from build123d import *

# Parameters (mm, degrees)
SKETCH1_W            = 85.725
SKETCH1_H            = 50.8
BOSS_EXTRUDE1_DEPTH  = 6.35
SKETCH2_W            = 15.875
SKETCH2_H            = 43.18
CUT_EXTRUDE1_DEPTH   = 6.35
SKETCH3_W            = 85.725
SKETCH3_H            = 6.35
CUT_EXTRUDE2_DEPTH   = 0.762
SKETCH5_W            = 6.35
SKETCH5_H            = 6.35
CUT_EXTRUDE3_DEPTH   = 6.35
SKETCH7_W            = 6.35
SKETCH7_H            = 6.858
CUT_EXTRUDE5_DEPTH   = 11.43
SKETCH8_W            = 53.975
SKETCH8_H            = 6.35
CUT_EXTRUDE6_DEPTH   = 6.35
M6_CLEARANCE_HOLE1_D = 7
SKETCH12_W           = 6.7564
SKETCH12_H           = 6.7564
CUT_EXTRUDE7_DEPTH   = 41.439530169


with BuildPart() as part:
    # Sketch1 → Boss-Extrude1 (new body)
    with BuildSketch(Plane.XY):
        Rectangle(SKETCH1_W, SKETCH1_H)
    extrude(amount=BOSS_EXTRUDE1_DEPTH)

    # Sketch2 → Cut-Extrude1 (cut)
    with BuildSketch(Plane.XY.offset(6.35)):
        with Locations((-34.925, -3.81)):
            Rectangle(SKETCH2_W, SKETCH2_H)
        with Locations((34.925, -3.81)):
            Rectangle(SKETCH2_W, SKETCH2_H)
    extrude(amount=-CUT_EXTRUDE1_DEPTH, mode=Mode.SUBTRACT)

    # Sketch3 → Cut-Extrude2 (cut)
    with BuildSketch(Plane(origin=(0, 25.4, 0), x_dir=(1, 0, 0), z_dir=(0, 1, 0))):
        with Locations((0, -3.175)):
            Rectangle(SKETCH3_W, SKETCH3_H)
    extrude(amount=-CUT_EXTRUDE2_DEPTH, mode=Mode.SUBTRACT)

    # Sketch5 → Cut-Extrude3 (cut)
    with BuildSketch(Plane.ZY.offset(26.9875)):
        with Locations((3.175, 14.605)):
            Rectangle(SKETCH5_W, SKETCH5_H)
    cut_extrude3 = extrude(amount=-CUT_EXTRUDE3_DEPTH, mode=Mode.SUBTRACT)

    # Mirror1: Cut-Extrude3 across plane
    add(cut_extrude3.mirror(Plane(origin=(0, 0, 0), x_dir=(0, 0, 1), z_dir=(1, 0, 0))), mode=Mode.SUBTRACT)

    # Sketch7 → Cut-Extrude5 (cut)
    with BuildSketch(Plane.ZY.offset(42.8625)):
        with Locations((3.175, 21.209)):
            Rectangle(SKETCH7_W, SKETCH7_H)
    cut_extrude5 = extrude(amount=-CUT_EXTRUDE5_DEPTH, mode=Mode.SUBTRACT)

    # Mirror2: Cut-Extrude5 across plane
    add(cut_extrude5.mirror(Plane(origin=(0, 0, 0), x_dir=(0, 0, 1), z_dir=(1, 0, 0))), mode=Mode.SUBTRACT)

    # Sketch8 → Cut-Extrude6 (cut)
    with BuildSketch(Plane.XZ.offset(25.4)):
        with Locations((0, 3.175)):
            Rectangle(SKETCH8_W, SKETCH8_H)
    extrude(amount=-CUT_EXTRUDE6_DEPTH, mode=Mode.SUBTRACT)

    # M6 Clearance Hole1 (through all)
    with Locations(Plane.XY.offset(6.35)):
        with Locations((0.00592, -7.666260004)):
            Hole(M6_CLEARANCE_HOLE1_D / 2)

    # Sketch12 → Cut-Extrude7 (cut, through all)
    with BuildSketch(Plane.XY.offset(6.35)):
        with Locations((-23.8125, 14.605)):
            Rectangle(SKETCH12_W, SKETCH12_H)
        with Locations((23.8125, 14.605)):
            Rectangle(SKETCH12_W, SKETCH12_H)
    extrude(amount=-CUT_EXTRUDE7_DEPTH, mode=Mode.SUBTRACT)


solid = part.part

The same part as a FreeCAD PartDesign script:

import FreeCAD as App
import Part
import Sketcher

V = App.Vector
Q = App.Units.Quantity


def add_polygon(sketch, points):
    """Adds a closed chain of lines whose ends are joined by coincident constraints."""
    first, n = sketch.GeometryCount, len(points)
    for a, b in zip(points, points[1:] + points[:1]):
        sketch.addGeometry(Part.LineSegment(App.Vector(*a, 0), App.Vector(*b, 0)), False)
    for i in range(n):
        sketch.addConstraint(Sketcher.Constraint("Coincident", first + i, 2, first + (i + 1) % n, 1))

doc = App.newDocument("Part")
body = doc.addObject("PartDesign::Body", "Body")

# Sketch on XY plane
sketch1 = body.newObject("Sketcher::SketchObject", "Sketch")
sketch1.AttachmentSupport = (doc.getObject("XY_Plane"), [""])
sketch1.MapMode = "FlatFace"
add_polygon(sketch1, [(-42.8625, 25.4), (-42.8625, -25.4), (42.8625, -25.4), (42.8625, 25.4)])  # lines 0-3
sketch1.addConstraint([
    Sketcher.Constraint("Vertical", 0),
    Sketcher.Constraint("Horizontal", 1),
    Sketcher.Constraint("Vertical", 2),
    Sketcher.Constraint("Horizontal", 3),
    Sketcher.Constraint("Symmetric", 0, 2, 2, 2, -1, 1),
    Sketcher.Constraint("DistanceY", 0, 2, 0, 1, Q("2 in")),
    Sketcher.Constraint("DistanceX", 1, 1, 1, 2, Q("3.375 in")),
])
pad1 = body.newObject("PartDesign::Pad", "Pad")
pad1.Profile = sketch1
pad1.Length = Q("0.25 in")

# Sketch on XY plane
sketch2 = body.newObject("Sketcher::SketchObject", "Sketch001")
sketch2.AttachmentSupport = (doc.getObject("XY_Plane"), [""])
sketch2.MapMode = "FlatFace"
sketch2.AttachmentOffset = App.Placement(V(0, 0, 0.25 * 25.4), App.Rotation())
add_polygon(sketch2, [(-42.8625, 17.78), (-42.8625, -25.4), (-26.9875, -25.4), (-26.9875, 17.78)])  # lines 0-3
add_polygon(sketch2, [(26.9875, 17.78), (26.9875, -25.4), (42.8625, -25.4), (42.8625, 17.78)])  # lines 4-7
sketch2.addConstraint([
    Sketcher.Constraint("Vertical", 0),
    Sketcher.Constraint("Horizontal", 1),
    Sketcher.Constraint("Vertical", 2),
    Sketcher.Constraint("Horizontal", 3),
    Sketcher.Constraint("Vertical", 4),
    Sketcher.Constraint("Horizontal", 5),
    Sketcher.Constraint("Vertical", 6),
    Sketcher.Constraint("Horizontal", 7),
    Sketcher.Constraint("Symmetric", 1, 2, 4, 2, -2),
    Sketcher.Constraint("Symmetric", 3, 2, 6, 2, -2),
    Sketcher.Constraint("DistanceY", 0, 2, 0, 1, Q("1.7 in")),
    Sketcher.Constraint("DistanceY", 0, 2, -1, 1, Q("1 in")),
    Sketcher.Constraint("DistanceX", 1, 1, 1, 2, Q("0.625 in")),
    Sketcher.Constraint("DistanceX", 0, 2, 4, 2, Q("2.75 in")),
])
pocket1 = body.newObject("PartDesign::Pocket", "Pocket")
pocket1.Profile = sketch2
pocket1.Length = Q("0.25 in")

# Sketch on XZ plane
sketch3 = body.newObject("Sketcher::SketchObject", "Sketch002")
sketch3.AttachmentSupport = (doc.getObject("XZ_Plane"), [""])
sketch3.MapMode = "FlatFace"
sketch3.AttachmentOffset = App.Placement(V(0, 0, -1 * 25.4), App.Rotation())
add_polygon(sketch3, [(-42.8625, 0), (-42.8625, 6.35), (42.8625, 6.35), (42.8625, 0)])  # lines 0-3
sketch3.addConstraint([
    Sketcher.Constraint("Vertical", 0),
    Sketcher.Constraint("Horizontal", 1),
    Sketcher.Constraint("Vertical", 2),
    Sketcher.Constraint("Horizontal", 3),
    Sketcher.Constraint("Symmetric", 2, 2, 3, 2, -1, 1),
    Sketcher.Constraint("DistanceY", 0, 1, 0, 2, Q("0.25 in")),
    Sketcher.Constraint("DistanceX", 1, 1, 1, 2, Q("3.375 in")),
])
pocket2 = body.newObject("PartDesign::Pocket", "Pocket001")
pocket2.Profile = sketch3
pocket2.Length = Q("0.03 in")
pocket2.Reversed = True

# Sketch on YZ plane
sketch4 = body.newObject("Sketcher::SketchObject", "Sketch003")
sketch4.AttachmentSupport = (doc.getObject("YZ_Plane"), [""])
sketch4.MapMode = "FlatFace"
sketch4.AttachmentOffset = App.Placement(V(0, 0, -1.0625 * 25.4), App.Rotation())
add_polygon(sketch4, [(17.78, 0), (11.43, 0), (11.43, 6.35), (17.78, 6.35)])  # lines 0-3
sketch4.addConstraint([
    Sketcher.Constraint("Horizontal", 0),
    Sketcher.Constraint("Vertical", 1),
    Sketcher.Constraint("Horizontal", 2),
    Sketcher.Constraint("Vertical", 3),
    Sketcher.Constraint("PointOnObject", 0, 2, -1),
    Sketcher.Constraint("Equal", 2, 1),
    Sketcher.Constraint("DistanceX", 0, 2, 0, 1, Q("0.25 in")),
    Sketcher.Constraint("DistanceX", -1, 1, 2, 2, Q("0.7 in")),
])
pocket3 = body.newObject("PartDesign::Pocket", "Pocket002")
pocket3.Profile = sketch4
pocket3.Length = Q("0.25 in")
pocket3.Reversed = True
doc.recompute()

mirrored = body.newObject("PartDesign::Mirrored", "Mirrored")
mirrored.Originals = [pocket3]
mirrored.MirrorPlane = (doc.getObject("YZ_Plane"), [""])
body.Tip = mirrored

# Sketch on YZ plane
sketch5 = body.newObject("Sketcher::SketchObject", "Sketch004")
sketch5.AttachmentSupport = (doc.getObject("YZ_Plane"), [""])
sketch5.MapMode = "FlatFace"
sketch5.AttachmentOffset = App.Placement(V(0, 0, -1.6875 * 25.4), App.Rotation())
add_polygon(sketch5, [(24.638, 0), (17.78, 0), (17.78, 6.35), (24.638, 6.35)])  # lines 0-3
sketch5.addConstraint([
    Sketcher.Constraint("Horizontal", 0),
    Sketcher.Constraint("Vertical", 1),
    Sketcher.Constraint("Horizontal", 2),
    Sketcher.Constraint("Vertical", 3),
    Sketcher.Constraint("PointOnObject", 0, 2, -1),
    Sketcher.Constraint("DistanceX", 0, 2, 0, 1, Q("0.27 in")),
    Sketcher.Constraint("DistanceY", 1, 1, 1, 2, Q("0.25 in")),
    Sketcher.Constraint("DistanceX", -1, 1, 0, 2, Q("0.7 in")),
])
pocket4 = body.newObject("PartDesign::Pocket", "Pocket003")
pocket4.Profile = sketch5
pocket4.Length = Q("0.45 in")
pocket4.Reversed = True
doc.recompute()

mirrored2 = body.newObject("PartDesign::Mirrored", "Mirrored001")
mirrored2.Originals = [pocket4]
mirrored2.MirrorPlane = (doc.getObject("YZ_Plane"), [""])
body.Tip = mirrored2

# Sketch on XZ plane
sketch6 = body.newObject("Sketcher::SketchObject", "Sketch005")
sketch6.AttachmentSupport = (doc.getObject("XZ_Plane"), [""])
sketch6.MapMode = "FlatFace"
sketch6.AttachmentOffset = App.Placement(V(0, 0, 1 * 25.4), App.Rotation())
add_polygon(sketch6, [(-26.9875, 6.35), (-26.9875, 0), (26.9875, 0), (26.9875, 6.35)])  # lines 0-3
sketch6.addConstraint([
    Sketcher.Constraint("Vertical", 0),
    Sketcher.Constraint("Horizontal", 1),
    Sketcher.Constraint("Vertical", 2),
    Sketcher.Constraint("Horizontal", 3),
    Sketcher.Constraint("Symmetric", 0, 2, 1, 2, -1, 1),
    Sketcher.Constraint("DistanceY", 0, 2, 0, 1, Q("0.25 in")),
    Sketcher.Constraint("DistanceX", 1, 1, 1, 2, Q("2.125 in")),
])
pocket5 = body.newObject("PartDesign::Pocket", "Pocket004")
pocket5.Profile = sketch6
pocket5.Length = Q("0.25 in")

# Sketch on XY plane
sketch7 = body.newObject("Sketcher::SketchObject", "Sketch006")
sketch7.AttachmentSupport = (doc.getObject("XY_Plane"), [""])
sketch7.MapMode = "FlatFace"
sketch7.AttachmentOffset = App.Placement(V(0, 0, 0.25 * 25.4), App.Rotation())
sketch7.addGeometry(Part.Circle(V(0.00592, -7.66626, 0), V(0, 0, 1), 3.5), False)
sketch7.addConstraint([
    Sketcher.Constraint("Diameter", 0, 7.0),
    Sketcher.Constraint("DistanceX", -1, 1, 0, 3, 0.00592),
    Sketcher.Constraint("DistanceY", 0, 3, -1, 1, 7.66626),
])
doc.recompute()
hole = body.newObject("PartDesign::Hole", "Hole")
hole.Profile = sketch7
hole.ThreadType = "None"
hole.Diameter = 7
hole.DepthType = "ThroughAll"

# Sketch on XY plane
sketch8 = body.newObject("Sketcher::SketchObject", "Sketch007")
sketch8.AttachmentSupport = (doc.getObject("XY_Plane"), [""])
sketch8.MapMode = "FlatFace"
sketch8.AttachmentOffset = App.Placement(V(0, 0, 0.25 * 25.4), App.Rotation())
add_polygon(sketch8, [(-27.1907, 17.9832), (-27.1907, 11.2268), (-20.4343, 11.2268), (-20.4343, 17.9832)])  # lines 0-3
add_polygon(sketch8, [(20.4343, 17.9832), (20.4343, 11.2268), (27.1907, 11.2268), (27.1907, 17.9832)])  # lines 4-7
sketch8.addConstraint([
    Sketcher.Constraint("Vertical", 0),
    Sketcher.Constraint("Horizontal", 1),
    Sketcher.Constraint("Vertical", 2),
    Sketcher.Constraint("Horizontal", 3),
    Sketcher.Constraint("Vertical", 4),
    Sketcher.Constraint("Horizontal", 5),
    Sketcher.Constraint("Vertical", 6),
    Sketcher.Constraint("Horizontal", 7),
    Sketcher.Constraint("Symmetric", 1, 2, 4, 2, -2),
    Sketcher.Constraint("Symmetric", 3, 2, 6, 2, -2),
    Sketcher.Constraint("Equal", 7, 0),
    Sketcher.Constraint("DistanceX", 1, 1, 1, 2, Q("0.266 in")),
    Sketcher.Constraint("DistanceY", -1, 1, 0, 2, Q("0.442 in")),
    Sketcher.Constraint("DistanceX", 1, 2, 4, 2, Q("1.609 in")),
])
pocket6 = body.newObject("PartDesign::Pocket", "Pocket005")
pocket6.Profile = sketch8
pocket6.Type = "ThroughAll"

doc.recompute()
